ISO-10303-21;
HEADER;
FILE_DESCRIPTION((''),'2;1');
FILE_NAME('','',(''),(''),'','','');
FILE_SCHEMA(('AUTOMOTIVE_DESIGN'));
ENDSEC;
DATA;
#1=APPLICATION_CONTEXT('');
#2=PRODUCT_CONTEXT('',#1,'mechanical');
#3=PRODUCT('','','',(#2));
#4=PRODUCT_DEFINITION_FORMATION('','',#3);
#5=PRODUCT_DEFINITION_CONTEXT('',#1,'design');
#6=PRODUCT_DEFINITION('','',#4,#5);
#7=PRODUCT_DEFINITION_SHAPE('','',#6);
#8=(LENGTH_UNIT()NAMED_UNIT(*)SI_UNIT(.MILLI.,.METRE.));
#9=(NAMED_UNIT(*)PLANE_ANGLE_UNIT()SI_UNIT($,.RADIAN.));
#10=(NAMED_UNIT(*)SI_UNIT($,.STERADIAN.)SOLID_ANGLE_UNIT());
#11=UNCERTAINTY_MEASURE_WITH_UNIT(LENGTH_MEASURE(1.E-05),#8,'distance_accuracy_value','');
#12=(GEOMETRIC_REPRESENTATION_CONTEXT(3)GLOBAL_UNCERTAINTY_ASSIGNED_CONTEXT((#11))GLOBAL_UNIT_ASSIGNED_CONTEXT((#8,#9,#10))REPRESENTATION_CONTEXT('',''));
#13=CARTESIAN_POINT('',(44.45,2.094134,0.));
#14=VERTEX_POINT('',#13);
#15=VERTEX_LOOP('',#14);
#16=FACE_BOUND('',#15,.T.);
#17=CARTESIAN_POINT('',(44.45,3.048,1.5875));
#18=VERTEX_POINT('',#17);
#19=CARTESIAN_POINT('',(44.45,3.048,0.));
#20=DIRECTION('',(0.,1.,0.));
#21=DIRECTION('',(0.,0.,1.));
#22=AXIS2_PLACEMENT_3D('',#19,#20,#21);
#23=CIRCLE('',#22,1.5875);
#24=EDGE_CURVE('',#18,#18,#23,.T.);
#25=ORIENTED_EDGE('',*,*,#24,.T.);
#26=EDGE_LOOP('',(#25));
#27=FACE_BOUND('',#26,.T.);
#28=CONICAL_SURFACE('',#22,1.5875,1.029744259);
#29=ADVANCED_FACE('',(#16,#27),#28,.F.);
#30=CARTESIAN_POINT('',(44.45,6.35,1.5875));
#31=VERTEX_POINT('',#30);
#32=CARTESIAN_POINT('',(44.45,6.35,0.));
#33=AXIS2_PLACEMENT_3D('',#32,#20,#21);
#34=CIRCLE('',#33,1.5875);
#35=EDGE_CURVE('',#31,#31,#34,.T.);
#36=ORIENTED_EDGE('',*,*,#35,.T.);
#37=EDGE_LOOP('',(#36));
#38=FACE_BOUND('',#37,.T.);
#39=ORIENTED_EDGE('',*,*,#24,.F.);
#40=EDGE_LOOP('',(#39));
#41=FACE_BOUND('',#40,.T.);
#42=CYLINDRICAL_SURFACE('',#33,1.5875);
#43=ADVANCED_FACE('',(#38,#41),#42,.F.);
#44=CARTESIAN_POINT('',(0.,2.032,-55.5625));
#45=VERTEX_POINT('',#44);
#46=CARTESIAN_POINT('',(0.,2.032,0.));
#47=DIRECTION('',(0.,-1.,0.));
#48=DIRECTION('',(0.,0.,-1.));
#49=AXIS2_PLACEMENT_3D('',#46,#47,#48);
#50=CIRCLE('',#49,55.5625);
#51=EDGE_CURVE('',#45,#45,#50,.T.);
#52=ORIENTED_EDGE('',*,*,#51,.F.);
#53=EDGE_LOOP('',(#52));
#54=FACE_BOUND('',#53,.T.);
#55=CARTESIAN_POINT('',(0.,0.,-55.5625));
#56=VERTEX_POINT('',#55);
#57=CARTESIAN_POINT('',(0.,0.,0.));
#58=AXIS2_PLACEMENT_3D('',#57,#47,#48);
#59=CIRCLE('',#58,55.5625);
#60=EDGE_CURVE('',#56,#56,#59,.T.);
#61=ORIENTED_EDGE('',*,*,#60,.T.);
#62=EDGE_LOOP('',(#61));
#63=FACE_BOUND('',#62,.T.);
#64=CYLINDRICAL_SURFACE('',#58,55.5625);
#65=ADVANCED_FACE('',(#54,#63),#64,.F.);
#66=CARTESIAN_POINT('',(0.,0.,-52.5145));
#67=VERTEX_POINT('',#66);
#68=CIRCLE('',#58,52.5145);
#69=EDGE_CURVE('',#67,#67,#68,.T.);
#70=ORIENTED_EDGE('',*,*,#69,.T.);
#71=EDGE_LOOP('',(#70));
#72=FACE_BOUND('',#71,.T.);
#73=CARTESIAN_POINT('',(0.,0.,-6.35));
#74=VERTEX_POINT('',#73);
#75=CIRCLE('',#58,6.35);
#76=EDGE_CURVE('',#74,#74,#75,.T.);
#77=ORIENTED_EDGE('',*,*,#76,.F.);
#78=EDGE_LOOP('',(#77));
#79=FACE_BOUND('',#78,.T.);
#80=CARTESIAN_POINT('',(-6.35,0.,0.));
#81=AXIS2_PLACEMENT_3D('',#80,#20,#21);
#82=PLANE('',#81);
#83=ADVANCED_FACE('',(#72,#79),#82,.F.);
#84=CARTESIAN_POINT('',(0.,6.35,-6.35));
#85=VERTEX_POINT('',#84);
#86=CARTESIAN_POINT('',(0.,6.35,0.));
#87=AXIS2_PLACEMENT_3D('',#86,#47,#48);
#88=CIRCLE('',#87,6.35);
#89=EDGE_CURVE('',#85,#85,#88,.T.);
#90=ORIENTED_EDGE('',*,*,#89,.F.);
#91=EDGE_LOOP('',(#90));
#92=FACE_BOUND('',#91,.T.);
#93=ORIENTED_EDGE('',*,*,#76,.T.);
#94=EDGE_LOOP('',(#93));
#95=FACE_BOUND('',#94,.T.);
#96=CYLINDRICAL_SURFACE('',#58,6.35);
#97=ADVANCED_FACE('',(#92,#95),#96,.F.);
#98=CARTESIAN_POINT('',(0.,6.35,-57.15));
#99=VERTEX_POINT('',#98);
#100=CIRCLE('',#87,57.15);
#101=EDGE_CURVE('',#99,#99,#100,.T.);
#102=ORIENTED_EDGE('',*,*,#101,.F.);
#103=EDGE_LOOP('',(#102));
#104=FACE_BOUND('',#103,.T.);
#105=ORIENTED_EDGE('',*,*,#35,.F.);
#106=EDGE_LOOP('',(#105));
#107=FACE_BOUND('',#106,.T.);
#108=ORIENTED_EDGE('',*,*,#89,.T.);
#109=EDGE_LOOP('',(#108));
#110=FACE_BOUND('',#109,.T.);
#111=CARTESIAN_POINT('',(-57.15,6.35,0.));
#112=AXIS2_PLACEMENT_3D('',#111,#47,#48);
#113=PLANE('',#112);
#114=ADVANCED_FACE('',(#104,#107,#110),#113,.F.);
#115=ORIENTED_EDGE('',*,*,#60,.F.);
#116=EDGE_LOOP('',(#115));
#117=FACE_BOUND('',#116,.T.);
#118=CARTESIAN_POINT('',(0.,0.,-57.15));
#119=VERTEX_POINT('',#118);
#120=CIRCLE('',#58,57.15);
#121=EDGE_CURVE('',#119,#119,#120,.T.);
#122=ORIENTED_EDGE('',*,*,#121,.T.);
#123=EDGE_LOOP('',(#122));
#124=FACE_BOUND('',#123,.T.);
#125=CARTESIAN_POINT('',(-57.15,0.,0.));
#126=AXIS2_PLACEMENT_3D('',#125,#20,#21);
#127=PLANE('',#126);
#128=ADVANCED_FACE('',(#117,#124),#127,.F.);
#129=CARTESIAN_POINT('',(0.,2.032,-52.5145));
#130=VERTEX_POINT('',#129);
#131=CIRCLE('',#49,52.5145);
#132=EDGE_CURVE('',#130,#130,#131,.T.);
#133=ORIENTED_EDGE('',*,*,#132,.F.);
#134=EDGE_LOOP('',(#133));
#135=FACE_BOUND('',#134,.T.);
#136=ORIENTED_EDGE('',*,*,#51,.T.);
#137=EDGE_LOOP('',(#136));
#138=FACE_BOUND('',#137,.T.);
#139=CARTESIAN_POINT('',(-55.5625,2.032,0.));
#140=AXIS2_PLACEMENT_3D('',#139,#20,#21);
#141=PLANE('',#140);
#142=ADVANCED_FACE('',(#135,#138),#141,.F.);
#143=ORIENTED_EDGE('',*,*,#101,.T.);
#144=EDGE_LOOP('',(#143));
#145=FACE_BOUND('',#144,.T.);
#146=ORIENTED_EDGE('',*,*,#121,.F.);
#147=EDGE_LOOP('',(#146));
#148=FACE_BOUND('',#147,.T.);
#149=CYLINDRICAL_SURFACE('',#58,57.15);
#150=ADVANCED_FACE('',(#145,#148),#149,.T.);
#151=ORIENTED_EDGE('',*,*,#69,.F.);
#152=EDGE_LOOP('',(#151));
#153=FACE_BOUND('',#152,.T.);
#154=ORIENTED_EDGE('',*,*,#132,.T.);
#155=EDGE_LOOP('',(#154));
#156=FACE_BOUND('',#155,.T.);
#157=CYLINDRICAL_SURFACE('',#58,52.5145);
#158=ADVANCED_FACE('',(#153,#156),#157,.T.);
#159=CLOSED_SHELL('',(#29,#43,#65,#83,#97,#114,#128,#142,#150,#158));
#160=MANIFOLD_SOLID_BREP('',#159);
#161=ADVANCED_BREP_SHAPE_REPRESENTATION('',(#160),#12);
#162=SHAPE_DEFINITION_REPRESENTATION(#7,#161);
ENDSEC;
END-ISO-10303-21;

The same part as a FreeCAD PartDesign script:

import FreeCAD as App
import Part
import Sketcher
Q = App.Units.Quantity


def add_polygon(sketch, points):
    """Adds a closed chain of lines whose ends are joined by coincident constraints."""
    first, n = sketch.GeometryCount, len(points)
    for a, b in zip(points, points[1:] + points[:1]):
        sketch.addGeometry(Part.LineSegment(App.Vector(*a, 0), App.Vector(*b, 0)), False)
    for i in range(n):
        sketch.addConstraint(Sketcher.Constraint("Coincident", first + i, 2, first + (i + 1) % n, 1))

doc = App.newDocument("Part")
body = doc.addObject("PartDesign::Body", "Body")

# Sketch on XY plane
sketch1 = body.newObject("Sketcher::SketchObject", "Sketch")
sketch1.AttachmentSupport = (doc.getObject("XY_Plane"), [""])
sketch1.MapMode = "FlatFace"
add_polygon(sketch1, [(-52.5, 0), (-6.3, 0), (-6.3, 6.3), (-57.1, 6.3), (-57.1, 0), (-55.6, 0), (-55.6, 2), (-52.5, 2)])  # lines 0-7
sketch1.addConstraint([
    Sketcher.Constraint("Horizontal", 0),
    Sketcher.Constraint("Vertical", 1),
    Sketcher.Constraint("Horizontal", 2),
    Sketcher.Constraint("Vertical", 3),
    Sketcher.Constraint("Horizontal", 4),
    Sketcher.Constraint("Vertical", 5),
    Sketcher.Constraint("Horizontal", 6),
    Sketcher.Constraint("Vertical", 7),
    Sketcher.Constraint("PointOnObject", 0, 2, -1),
    Sketcher.Constraint("PointOnObject", 3, 2, -1),
    Sketcher.Constraint("DistanceX", 2, 2, 2, 1, Q("2 in")),
    Sketcher.Constraint("DistanceX", 6, 1, 6, 2, Q("0.12 in")),
    Sketcher.Constraint("DistanceY", 1, 1, 1, 2, Q("0.25 in")),
    Sketcher.Constraint("DistanceY", 5, 1, 5, 2, Q("0.08 in")),
    Sketcher.Constraint("DistanceX", 4, 1, 4, 2, Q("0.0625 in")),
    Sketcher.Constraint("DistanceX", 0, 2, -1, 1, Q("0.25 in")),
])
revolution = body.newObject("PartDesign::Revolution", "Revolution")
revolution.Profile = sketch1
revolution.ReferenceAxis = (sketch1, ["V_Axis"])
revolution.Angle = 360

# Sketch on XZ plane
sketch2 = body.newObject("Sketcher::SketchObject", "Sketch001")
sketch2.AttachmentSupport = (doc.getObject("XZ_Plane"), [""])
sketch2.MapMode = "FlatFace"
sketch2.AttachmentOffset = App.Placement(App.Vector(0, 0, -0.25 * 25.4), App.Rotation())
sketch2.addGeometry(Part.Circle(App.Vector(44.5, 0, 0), App.Vector(0, 0, 1), 1.6), False)
sketch2.addConstraint([
    Sketcher.Constraint("PointOnObject", 0, 3, -1),
    Sketcher.Constraint("Diameter", 0, Q("0.125 in")),
    Sketcher.Constraint("DistanceX", -1, 1, 0, 3, Q("1.75 in")),
])
doc.recompute()
hole = body.newObject("PartDesign::Hole", "Hole")
hole.Profile = sketch2
hole.ThreadType = "None"
hole.Diameter = Q("0.125 in")
hole.DepthType = "Dimension"
hole.Depth = Q("0.13 in")
hole.DrillPoint = "Angled"
hole.DrillPointAngle = 118
hole.Reversed = True

doc.recompute()
